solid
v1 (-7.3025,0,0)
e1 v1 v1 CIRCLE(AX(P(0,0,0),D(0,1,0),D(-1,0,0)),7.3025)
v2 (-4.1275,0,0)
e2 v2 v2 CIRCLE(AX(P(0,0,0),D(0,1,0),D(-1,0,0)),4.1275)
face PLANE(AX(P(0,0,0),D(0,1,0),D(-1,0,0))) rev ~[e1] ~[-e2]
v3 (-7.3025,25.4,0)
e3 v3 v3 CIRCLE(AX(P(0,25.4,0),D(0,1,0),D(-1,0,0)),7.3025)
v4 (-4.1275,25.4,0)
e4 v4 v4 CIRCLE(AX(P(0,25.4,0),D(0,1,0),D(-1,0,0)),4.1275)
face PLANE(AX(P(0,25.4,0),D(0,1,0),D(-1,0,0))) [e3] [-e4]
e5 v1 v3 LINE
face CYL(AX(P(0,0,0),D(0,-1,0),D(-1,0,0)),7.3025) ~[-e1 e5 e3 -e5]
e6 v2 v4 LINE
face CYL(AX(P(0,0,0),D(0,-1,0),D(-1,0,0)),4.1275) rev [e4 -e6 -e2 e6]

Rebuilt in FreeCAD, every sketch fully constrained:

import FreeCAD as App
import Part
import Sketcher
Q = App.Units.Quantity

doc = App.newDocument("Part")
body = doc.addObject("PartDesign::Body", "Body")

# Sketch on XZ plane
sketch1 = body.newObject("Sketcher::SketchObject", "Sketch")
sketch1.AttachmentSupport = (doc.getObject("XZ_Plane"), [""])
sketch1.MapMode = "FlatFace"
sketch1.addGeometry(Part.Circle(App.Vector(0, 0, 0), App.Vector(0, 0, 1), 7.3), False)
sketch1.addGeometry(Part.Circle(App.Vector(0, 0, 0), App.Vector(0, 0, 1), 4.1), False)
sketch1.addConstraint(Sketcher.Constraint("Coincident", 0, 3, -1, 1))
sketch1.addConstraint(Sketcher.Constraint("Coincident", 1, 3, -1, 1))
sketch1.addConstraint(Sketcher.Constraint("Diameter", 1, Q("0.325 in")))
sketch1.addConstraint(Sketcher.Constraint("Diameter", 0, Q("0.575 in")))
pad1 = body.newObject("PartDesign::Pad", "Pad")
pad1.Profile = sketch1
pad1.Length = Q("1 in")
pad1.Reversed = True

doc.recompute()
